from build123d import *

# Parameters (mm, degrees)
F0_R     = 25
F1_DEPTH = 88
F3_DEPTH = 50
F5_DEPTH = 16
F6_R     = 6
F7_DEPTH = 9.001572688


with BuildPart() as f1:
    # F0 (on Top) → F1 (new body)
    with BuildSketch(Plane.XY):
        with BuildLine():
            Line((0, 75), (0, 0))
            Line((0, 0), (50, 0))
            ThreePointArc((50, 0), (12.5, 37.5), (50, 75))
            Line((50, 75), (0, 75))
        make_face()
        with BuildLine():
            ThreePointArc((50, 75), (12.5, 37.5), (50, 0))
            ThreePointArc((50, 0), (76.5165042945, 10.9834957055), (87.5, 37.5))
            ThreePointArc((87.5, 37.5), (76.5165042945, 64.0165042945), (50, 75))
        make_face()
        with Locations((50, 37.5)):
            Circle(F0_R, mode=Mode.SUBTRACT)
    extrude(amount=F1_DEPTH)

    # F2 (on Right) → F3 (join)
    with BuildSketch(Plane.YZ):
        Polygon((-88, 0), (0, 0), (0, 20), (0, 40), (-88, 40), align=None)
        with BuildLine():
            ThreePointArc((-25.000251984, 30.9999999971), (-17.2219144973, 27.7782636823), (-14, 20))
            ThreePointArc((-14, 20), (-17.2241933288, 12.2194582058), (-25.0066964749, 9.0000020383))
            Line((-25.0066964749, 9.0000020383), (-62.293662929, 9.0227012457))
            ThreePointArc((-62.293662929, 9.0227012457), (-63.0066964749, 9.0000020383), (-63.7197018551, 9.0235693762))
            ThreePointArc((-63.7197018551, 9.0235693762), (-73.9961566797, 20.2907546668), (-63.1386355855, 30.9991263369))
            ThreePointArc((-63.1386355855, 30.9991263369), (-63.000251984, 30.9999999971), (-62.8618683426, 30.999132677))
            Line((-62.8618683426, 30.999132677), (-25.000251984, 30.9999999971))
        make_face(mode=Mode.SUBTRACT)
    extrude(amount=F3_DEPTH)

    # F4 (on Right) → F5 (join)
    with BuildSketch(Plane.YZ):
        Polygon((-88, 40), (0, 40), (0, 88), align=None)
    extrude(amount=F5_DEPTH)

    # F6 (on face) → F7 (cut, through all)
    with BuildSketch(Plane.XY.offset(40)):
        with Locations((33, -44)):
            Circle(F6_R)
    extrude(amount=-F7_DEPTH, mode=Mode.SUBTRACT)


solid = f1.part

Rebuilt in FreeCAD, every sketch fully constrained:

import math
import FreeCAD as App
import Part
import Sketcher
Q = App.Units.Quantity


def add_polygon(sketch, points):
    """Adds a closed chain of lines whose ends are joined by coincident constraints."""
    first, n = sketch.GeometryCount, len(points)
    for a, b in zip(points, points[1:] + points[:1]):
        sketch.addGeometry(Part.LineSegment(App.Vector(*a, 0), App.Vector(*b, 0)), False)
    for i in range(n):
        sketch.addConstraint(Sketcher.Constraint("Coincident", first + i, 2, first + (i + 1) % n, 1))

doc = App.newDocument("Part")
params = doc.addObject("Spreadsheet::Sheet", "Params")
for row, (alias, value) in enumerate([
    ("sketch1_diameter", "50 mm"),
    ("sketch1_radius", "37.5 mm"),
    ("sketch1_width", "50 mm"),
    ("pad1_length", "88 mm"),
    ("sketch2_radius", "11 mm"),
    ("sketch2_width", "88 mm"),
    ("sketch2_height", "40 mm"),
    ("pad2_length", "50 mm"),
    ("sketch3_width", "88 mm"),
    ("sketch3_height", "48 mm"),
    ("pad3_length", "16 mm"),
    ("sketch4_diameter", "12 mm"),
    ("pocket1_length", "9.001573 mm"),
], start=1):
    params.set(f"A{row}", alias)
    params.set(f"B{row}", "=" + value)
    params.setAlias(f"B{row}", alias)

body = doc.addObject("PartDesign::Body", "Body")

# Sketch on XY plane
sketch1 = body.newObject("Sketcher::SketchObject", "Sketch")
sketch1.AttachmentSupport = (doc.getObject("XY_Plane"), [""])
sketch1.MapMode = "FlatFace"
sketch1.addGeometry(Part.LineSegment(App.Vector(0, 75, 0), App.Vector(0, 0, 0)), False)
sketch1.addGeometry(Part.LineSegment(App.Vector(0, 0, 0), App.Vector(50, 0, 0)), False)
sketch1.addGeometry(Part.ArcOfCircle(Part.Circle(App.Vector(50, 38, 0), App.Vector(0, 0, 1), 38), math.radians(-90), math.radians(90)), False)
sketch1.addGeometry(Part.LineSegment(App.Vector(50, 75, 0), App.Vector(0, 75, 0)), False)
sketch1.addGeometry(Part.Circle(App.Vector(50, 38, 0), App.Vector(0, 0, 1), 25), False)
sketch1.addConstraint(Sketcher.Constraint("Coincident", 0, 2, 1, 1))
sketch1.addConstraint(Sketcher.Constraint("Tangent", 1, 2, 2, 1))
sketch1.addConstraint(Sketcher.Constraint("Tangent", 2, 2, 3, 1))
sketch1.addConstraint(Sketcher.Constraint("Coincident", 3, 2, 0, 1))
sketch1.addConstraint(Sketcher.Constraint("Vertical", 0))
sketch1.addConstraint(Sketcher.Constraint("Horizontal", 1))
sketch1.addConstraint(Sketcher.Constraint("Horizontal", 3))
sketch1.addConstraint(Sketcher.Constraint("Coincident", 0, 2, -1, 1))
sketch1.addConstraint(Sketcher.Constraint("Coincident", 4, 3, 2, 3))
sketch1.addConstraint(Sketcher.Constraint("Diameter", 4, Q("50 mm")))
sketch1.addConstraint(Sketcher.Constraint("Radius", 2, Q("37.5 mm")))
sketch1.addConstraint(Sketcher.Constraint("DistanceX", 1, 1, 1, 2, Q("50 mm")))
sketch1.setExpression("Constraints[9]", "Params.sketch1_diameter")
sketch1.setExpression("Constraints[10]", "Params.sketch1_radius")
sketch1.setExpression("Constraints[11]", "Params.sketch1_width")
pad1 = body.newObject("PartDesign::Pad", "Pad")
pad1.Profile = sketch1
pad1.setExpression("Length", "Params.pad1_length")

# Sketch on YZ plane
sketch2 = body.newObject("Sketcher::SketchObject", "Sketch001")
sketch2.AttachmentSupport = (doc.getObject("YZ_Plane"), [""])
sketch2.MapMode = "FlatFace"
add_polygon(sketch2, [(-88, 0), (0, 0), (0, 40), (-88, 40)])  # lines 0-3
sketch2.addGeometry(Part.LineSegment(App.Vector(-62.86, 31, 0), App.Vector(-25, 31, 0)), False)  # 4
sketch2.addGeometry(Part.ArcOfCircle(Part.Circle(App.Vector(-25, 20, 0), App.Vector(0, 0, 1), 11), math.radians(0), math.radians(90)), False)  # 5
sketch2.addGeometry(Part.ArcOfCircle(Part.Circle(App.Vector(-25, 20, 0), App.Vector(0, 0, 1), 11), math.radians(-90), math.radians(0)), False)  # 6
sketch2.addGeometry(Part.LineSegment(App.Vector(-25.01, 9, 0), App.Vector(-62.29, 9.02, 0)), False)  # 7
sketch2.addGeometry(Part.ArcOfCircle(Part.Circle(App.Vector(-63, 20, 0), App.Vector(0, 0, 1), 11), math.radians(-93.75), math.radians(-86.32)), False)  # 8
sketch2.addGeometry(Part.ArcOfCircle(Part.Circle(App.Vector(-63, 20, 0), App.Vector(0, 0, 1), 11), math.radians(91), math.radians(266)), False)  # 9
sketch2.addGeometry(Part.ArcOfCircle(Part.Circle(App.Vector(-63, 20, 0), App.Vector(0, 0, 1), 11), math.radians(89.28), math.radians(90.72)), False)  # 10
sketch2.addConstraint(Sketcher.Constraint("Tangent", 4, 2, 5, 2))
sketch2.addConstraint(Sketcher.Constraint("Tangent", 5, 1, 6, 2))
sketch2.addConstraint(Sketcher.Constraint("Tangent", 6, 1, 7, 1))
sketch2.addConstraint(Sketcher.Constraint("Coincident", 7, 2, 8, 2))
sketch2.addConstraint(Sketcher.Constraint("Tangent", 8, 1, 9, 2))
sketch2.addConstraint(Sketcher.Constraint("Tangent", 9, 1, 10, 2))
sketch2.addConstraint(Sketcher.Constraint("Coincident", 10, 1, 4, 1))
sketch2.addConstraint(Sketcher.Constraint("Horizontal", 0))
sketch2.addConstraint(Sketcher.Constraint("Vertical", 1))
sketch2.addConstraint(Sketcher.Constraint("Horizontal", 2))
sketch2.addConstraint(Sketcher.Constraint("Vertical", 3))
sketch2.addConstraint(Sketcher.Constraint("Coincident", 0, 2, -1, 1))
sketch2.addConstraint(Sketcher.Constraint("Coincident", 10, 3, 8, 3))
sketch2.addConstraint(Sketcher.Constraint("Equal", 5, 6))
sketch2.addConstraint(Sketcher.Constraint("Equal", 6, 8))
sketch2.addConstraint(Sketcher.Constraint("Horizontal", 6, 3, 8, 3))
sketch2.addConstraint(Sketcher.Constraint("Horizontal", 10, 3, 5, 1))
sketch2.addConstraint(Sketcher.Constraint("Radius", 5, Q("11 mm")))
sketch2.addConstraint(Sketcher.Constraint("DistanceX", 0, 1, 0, 2, Q("88 mm")))
sketch2.addConstraint(Sketcher.Constraint("DistanceY", 1, 1, 1, 2, Q("40 mm")))
sketch2.addConstraint(Sketcher.Constraint("DistanceX", 5, 3, -1, 1, Q("25 mm")))
sketch2.addConstraint(Sketcher.Constraint("DistanceY", -1, 1, 5, 3, Q("20 mm")))
sketch2.addConstraint(Sketcher.Constraint("DistanceX", 8, 3, -1, 1, Q("63 mm")))
sketch2.addConstraint(Sketcher.Constraint("DistanceY", -1, 1, 7, 2, Q("9.022701 mm")))
sketch2.addConstraint(Sketcher.Constraint("DistanceX", 8, 1, -1, 1, Q("63.719702 mm")))
sketch2.addConstraint(Sketcher.Constraint("DistanceX", 4, 2, -1, 1, Q("25.000252 mm")))
sketch2.addConstraint(Sketcher.Constraint("DistanceX", 9, 1, -1, 1, Q("63.138636 mm")))
sketch2.setExpression("Constraints[21]", "Params.sketch2_radius")
sketch2.setExpression("Constraints[22]", "Params.sketch2_width")
sketch2.setExpression("Constraints[23]", "Params.sketch2_height")
pad2 = body.newObject("PartDesign::Pad", "Pad001")
pad2.Profile = sketch2
pad2.setExpression("Length", "Params.pad2_length")

# Sketch on YZ plane
sketch3 = body.newObject("Sketcher::SketchObject", "Sketch002")
sketch3.AttachmentSupport = (doc.getObject("YZ_Plane"), [""])
sketch3.MapMode = "FlatFace"
add_polygon(sketch3, [(-88, 40), (0, 40), (0, 88)])  # lines 0-2
sketch3.addConstraint(Sketcher.Constraint("Horizontal", 0))
sketch3.addConstraint(Sketcher.Constraint("Vertical", 1))
sketch3.addConstraint(Sketcher.Constraint("PointOnObject", 0, 2, -2))
sketch3.addConstraint(Sketcher.Constraint("DistanceX", 0, 1, 0, 2, Q("88 mm")))
sketch3.addConstraint(Sketcher.Constraint("DistanceY", 1, 1, 1, 2, Q("48 mm")))
sketch3.addConstraint(Sketcher.Constraint("DistanceY", -1, 1, 0, 2, Q("40 mm")))
sketch3.setExpression("Constraints[6]", "Params.sketch3_width")
sketch3.setExpression("Constraints[7]", "Params.sketch3_height")
pad3 = body.newObject("PartDesign::Pad", "Pad002")
pad3.Profile = sketch3
pad3.setExpression("Length", "Params.pad3_length")

# Sketch on XY plane
sketch4 = body.newObject("Sketcher::SketchObject", "Sketch003")
sketch4.AttachmentSupport = (doc.getObject("XY_Plane"), [""])
sketch4.MapMode = "FlatFace"
sketch4.AttachmentOffset = App.Placement(App.Vector(0, 0, 40), App.Rotation())
sketch4.addGeometry(Part.Circle(App.Vector(33, -44, 0), App.Vector(0, 0, 1), 6), False)
sketch4.addConstraint(Sketcher.Constraint("Diameter", 0, Q("12 mm")))
sketch4.addConstraint(Sketcher.Constraint("DistanceX", -1, 1, 0, 3, Q("33 mm")))
sketch4.addConstraint(Sketcher.Constraint("DistanceY", 0, 3, -1, 1, Q("44 mm")))
sketch4.setExpression("Constraints[0]", "Params.sketch4_diameter")
pocket1 = body.newObject("PartDesign::Pocket", "Pocket")
pocket1.Profile = sketch4
pocket1.setExpression("Length", "Params.pocket1_length")

doc.recompute()
